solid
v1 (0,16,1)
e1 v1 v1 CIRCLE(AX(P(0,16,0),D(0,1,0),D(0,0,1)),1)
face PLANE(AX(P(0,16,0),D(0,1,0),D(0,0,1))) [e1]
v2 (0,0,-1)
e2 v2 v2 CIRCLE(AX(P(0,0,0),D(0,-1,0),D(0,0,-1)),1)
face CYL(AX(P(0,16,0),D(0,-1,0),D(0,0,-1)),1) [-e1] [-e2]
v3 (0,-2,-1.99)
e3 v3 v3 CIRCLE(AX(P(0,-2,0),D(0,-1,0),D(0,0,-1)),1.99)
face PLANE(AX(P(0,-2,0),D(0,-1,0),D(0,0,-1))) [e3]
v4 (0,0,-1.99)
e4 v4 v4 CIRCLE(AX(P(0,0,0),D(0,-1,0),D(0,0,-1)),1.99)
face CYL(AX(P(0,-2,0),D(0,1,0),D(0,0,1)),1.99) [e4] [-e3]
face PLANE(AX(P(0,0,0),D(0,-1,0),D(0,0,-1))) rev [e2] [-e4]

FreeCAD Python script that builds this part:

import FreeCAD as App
import Part
import Sketcher
Q = App.Units.Quantity

doc = App.newDocument("Part")
body = doc.addObject("PartDesign::Body", "Body")

sketch1 = body.newObject("Sketcher::SketchObject", "Sketch")
sketch1.AttachmentSupport = (doc.getObject("XZ_Plane"), [""])
sketch1.MapMode = "FlatFace"
sketch1.addGeometry(Part.Circle(App.Vector(0, 0, 0), App.Vector(0, 0, 1), 1), False)
sketch1.addConstraint(Sketcher.Constraint("Coincident", 0, 3, -1, 1))
sketch1.addConstraint(Sketcher.Constraint("Diameter", 0, Q("2 mm")))
pad1 = body.newObject("PartDesign::Pad", "Pad")
pad1.Profile = sketch1
pad1.Length = 16
pad1.Reversed = True

sketch2 = body.newObject("Sketcher::SketchObject", "Sketch001")
sketch2.AttachmentSupport = (doc.getObject("XZ_Plane"), [""])
sketch2.MapMode = "FlatFace"
sketch2.addGeometry(Part.Circle(App.Vector(0, 0, 0), App.Vector(0, 0, 1), 2), False)
sketch2.addConstraint(Sketcher.Constraint("Coincident", 0, 3, -1, 1))
sketch2.addConstraint(Sketcher.Constraint("Diameter", 0, Q("3.98 mm")))
pad2 = body.newObject("PartDesign::Pad", "Pad001")
pad2.Profile = sketch2
pad2.Length = 2

doc.recompute()
